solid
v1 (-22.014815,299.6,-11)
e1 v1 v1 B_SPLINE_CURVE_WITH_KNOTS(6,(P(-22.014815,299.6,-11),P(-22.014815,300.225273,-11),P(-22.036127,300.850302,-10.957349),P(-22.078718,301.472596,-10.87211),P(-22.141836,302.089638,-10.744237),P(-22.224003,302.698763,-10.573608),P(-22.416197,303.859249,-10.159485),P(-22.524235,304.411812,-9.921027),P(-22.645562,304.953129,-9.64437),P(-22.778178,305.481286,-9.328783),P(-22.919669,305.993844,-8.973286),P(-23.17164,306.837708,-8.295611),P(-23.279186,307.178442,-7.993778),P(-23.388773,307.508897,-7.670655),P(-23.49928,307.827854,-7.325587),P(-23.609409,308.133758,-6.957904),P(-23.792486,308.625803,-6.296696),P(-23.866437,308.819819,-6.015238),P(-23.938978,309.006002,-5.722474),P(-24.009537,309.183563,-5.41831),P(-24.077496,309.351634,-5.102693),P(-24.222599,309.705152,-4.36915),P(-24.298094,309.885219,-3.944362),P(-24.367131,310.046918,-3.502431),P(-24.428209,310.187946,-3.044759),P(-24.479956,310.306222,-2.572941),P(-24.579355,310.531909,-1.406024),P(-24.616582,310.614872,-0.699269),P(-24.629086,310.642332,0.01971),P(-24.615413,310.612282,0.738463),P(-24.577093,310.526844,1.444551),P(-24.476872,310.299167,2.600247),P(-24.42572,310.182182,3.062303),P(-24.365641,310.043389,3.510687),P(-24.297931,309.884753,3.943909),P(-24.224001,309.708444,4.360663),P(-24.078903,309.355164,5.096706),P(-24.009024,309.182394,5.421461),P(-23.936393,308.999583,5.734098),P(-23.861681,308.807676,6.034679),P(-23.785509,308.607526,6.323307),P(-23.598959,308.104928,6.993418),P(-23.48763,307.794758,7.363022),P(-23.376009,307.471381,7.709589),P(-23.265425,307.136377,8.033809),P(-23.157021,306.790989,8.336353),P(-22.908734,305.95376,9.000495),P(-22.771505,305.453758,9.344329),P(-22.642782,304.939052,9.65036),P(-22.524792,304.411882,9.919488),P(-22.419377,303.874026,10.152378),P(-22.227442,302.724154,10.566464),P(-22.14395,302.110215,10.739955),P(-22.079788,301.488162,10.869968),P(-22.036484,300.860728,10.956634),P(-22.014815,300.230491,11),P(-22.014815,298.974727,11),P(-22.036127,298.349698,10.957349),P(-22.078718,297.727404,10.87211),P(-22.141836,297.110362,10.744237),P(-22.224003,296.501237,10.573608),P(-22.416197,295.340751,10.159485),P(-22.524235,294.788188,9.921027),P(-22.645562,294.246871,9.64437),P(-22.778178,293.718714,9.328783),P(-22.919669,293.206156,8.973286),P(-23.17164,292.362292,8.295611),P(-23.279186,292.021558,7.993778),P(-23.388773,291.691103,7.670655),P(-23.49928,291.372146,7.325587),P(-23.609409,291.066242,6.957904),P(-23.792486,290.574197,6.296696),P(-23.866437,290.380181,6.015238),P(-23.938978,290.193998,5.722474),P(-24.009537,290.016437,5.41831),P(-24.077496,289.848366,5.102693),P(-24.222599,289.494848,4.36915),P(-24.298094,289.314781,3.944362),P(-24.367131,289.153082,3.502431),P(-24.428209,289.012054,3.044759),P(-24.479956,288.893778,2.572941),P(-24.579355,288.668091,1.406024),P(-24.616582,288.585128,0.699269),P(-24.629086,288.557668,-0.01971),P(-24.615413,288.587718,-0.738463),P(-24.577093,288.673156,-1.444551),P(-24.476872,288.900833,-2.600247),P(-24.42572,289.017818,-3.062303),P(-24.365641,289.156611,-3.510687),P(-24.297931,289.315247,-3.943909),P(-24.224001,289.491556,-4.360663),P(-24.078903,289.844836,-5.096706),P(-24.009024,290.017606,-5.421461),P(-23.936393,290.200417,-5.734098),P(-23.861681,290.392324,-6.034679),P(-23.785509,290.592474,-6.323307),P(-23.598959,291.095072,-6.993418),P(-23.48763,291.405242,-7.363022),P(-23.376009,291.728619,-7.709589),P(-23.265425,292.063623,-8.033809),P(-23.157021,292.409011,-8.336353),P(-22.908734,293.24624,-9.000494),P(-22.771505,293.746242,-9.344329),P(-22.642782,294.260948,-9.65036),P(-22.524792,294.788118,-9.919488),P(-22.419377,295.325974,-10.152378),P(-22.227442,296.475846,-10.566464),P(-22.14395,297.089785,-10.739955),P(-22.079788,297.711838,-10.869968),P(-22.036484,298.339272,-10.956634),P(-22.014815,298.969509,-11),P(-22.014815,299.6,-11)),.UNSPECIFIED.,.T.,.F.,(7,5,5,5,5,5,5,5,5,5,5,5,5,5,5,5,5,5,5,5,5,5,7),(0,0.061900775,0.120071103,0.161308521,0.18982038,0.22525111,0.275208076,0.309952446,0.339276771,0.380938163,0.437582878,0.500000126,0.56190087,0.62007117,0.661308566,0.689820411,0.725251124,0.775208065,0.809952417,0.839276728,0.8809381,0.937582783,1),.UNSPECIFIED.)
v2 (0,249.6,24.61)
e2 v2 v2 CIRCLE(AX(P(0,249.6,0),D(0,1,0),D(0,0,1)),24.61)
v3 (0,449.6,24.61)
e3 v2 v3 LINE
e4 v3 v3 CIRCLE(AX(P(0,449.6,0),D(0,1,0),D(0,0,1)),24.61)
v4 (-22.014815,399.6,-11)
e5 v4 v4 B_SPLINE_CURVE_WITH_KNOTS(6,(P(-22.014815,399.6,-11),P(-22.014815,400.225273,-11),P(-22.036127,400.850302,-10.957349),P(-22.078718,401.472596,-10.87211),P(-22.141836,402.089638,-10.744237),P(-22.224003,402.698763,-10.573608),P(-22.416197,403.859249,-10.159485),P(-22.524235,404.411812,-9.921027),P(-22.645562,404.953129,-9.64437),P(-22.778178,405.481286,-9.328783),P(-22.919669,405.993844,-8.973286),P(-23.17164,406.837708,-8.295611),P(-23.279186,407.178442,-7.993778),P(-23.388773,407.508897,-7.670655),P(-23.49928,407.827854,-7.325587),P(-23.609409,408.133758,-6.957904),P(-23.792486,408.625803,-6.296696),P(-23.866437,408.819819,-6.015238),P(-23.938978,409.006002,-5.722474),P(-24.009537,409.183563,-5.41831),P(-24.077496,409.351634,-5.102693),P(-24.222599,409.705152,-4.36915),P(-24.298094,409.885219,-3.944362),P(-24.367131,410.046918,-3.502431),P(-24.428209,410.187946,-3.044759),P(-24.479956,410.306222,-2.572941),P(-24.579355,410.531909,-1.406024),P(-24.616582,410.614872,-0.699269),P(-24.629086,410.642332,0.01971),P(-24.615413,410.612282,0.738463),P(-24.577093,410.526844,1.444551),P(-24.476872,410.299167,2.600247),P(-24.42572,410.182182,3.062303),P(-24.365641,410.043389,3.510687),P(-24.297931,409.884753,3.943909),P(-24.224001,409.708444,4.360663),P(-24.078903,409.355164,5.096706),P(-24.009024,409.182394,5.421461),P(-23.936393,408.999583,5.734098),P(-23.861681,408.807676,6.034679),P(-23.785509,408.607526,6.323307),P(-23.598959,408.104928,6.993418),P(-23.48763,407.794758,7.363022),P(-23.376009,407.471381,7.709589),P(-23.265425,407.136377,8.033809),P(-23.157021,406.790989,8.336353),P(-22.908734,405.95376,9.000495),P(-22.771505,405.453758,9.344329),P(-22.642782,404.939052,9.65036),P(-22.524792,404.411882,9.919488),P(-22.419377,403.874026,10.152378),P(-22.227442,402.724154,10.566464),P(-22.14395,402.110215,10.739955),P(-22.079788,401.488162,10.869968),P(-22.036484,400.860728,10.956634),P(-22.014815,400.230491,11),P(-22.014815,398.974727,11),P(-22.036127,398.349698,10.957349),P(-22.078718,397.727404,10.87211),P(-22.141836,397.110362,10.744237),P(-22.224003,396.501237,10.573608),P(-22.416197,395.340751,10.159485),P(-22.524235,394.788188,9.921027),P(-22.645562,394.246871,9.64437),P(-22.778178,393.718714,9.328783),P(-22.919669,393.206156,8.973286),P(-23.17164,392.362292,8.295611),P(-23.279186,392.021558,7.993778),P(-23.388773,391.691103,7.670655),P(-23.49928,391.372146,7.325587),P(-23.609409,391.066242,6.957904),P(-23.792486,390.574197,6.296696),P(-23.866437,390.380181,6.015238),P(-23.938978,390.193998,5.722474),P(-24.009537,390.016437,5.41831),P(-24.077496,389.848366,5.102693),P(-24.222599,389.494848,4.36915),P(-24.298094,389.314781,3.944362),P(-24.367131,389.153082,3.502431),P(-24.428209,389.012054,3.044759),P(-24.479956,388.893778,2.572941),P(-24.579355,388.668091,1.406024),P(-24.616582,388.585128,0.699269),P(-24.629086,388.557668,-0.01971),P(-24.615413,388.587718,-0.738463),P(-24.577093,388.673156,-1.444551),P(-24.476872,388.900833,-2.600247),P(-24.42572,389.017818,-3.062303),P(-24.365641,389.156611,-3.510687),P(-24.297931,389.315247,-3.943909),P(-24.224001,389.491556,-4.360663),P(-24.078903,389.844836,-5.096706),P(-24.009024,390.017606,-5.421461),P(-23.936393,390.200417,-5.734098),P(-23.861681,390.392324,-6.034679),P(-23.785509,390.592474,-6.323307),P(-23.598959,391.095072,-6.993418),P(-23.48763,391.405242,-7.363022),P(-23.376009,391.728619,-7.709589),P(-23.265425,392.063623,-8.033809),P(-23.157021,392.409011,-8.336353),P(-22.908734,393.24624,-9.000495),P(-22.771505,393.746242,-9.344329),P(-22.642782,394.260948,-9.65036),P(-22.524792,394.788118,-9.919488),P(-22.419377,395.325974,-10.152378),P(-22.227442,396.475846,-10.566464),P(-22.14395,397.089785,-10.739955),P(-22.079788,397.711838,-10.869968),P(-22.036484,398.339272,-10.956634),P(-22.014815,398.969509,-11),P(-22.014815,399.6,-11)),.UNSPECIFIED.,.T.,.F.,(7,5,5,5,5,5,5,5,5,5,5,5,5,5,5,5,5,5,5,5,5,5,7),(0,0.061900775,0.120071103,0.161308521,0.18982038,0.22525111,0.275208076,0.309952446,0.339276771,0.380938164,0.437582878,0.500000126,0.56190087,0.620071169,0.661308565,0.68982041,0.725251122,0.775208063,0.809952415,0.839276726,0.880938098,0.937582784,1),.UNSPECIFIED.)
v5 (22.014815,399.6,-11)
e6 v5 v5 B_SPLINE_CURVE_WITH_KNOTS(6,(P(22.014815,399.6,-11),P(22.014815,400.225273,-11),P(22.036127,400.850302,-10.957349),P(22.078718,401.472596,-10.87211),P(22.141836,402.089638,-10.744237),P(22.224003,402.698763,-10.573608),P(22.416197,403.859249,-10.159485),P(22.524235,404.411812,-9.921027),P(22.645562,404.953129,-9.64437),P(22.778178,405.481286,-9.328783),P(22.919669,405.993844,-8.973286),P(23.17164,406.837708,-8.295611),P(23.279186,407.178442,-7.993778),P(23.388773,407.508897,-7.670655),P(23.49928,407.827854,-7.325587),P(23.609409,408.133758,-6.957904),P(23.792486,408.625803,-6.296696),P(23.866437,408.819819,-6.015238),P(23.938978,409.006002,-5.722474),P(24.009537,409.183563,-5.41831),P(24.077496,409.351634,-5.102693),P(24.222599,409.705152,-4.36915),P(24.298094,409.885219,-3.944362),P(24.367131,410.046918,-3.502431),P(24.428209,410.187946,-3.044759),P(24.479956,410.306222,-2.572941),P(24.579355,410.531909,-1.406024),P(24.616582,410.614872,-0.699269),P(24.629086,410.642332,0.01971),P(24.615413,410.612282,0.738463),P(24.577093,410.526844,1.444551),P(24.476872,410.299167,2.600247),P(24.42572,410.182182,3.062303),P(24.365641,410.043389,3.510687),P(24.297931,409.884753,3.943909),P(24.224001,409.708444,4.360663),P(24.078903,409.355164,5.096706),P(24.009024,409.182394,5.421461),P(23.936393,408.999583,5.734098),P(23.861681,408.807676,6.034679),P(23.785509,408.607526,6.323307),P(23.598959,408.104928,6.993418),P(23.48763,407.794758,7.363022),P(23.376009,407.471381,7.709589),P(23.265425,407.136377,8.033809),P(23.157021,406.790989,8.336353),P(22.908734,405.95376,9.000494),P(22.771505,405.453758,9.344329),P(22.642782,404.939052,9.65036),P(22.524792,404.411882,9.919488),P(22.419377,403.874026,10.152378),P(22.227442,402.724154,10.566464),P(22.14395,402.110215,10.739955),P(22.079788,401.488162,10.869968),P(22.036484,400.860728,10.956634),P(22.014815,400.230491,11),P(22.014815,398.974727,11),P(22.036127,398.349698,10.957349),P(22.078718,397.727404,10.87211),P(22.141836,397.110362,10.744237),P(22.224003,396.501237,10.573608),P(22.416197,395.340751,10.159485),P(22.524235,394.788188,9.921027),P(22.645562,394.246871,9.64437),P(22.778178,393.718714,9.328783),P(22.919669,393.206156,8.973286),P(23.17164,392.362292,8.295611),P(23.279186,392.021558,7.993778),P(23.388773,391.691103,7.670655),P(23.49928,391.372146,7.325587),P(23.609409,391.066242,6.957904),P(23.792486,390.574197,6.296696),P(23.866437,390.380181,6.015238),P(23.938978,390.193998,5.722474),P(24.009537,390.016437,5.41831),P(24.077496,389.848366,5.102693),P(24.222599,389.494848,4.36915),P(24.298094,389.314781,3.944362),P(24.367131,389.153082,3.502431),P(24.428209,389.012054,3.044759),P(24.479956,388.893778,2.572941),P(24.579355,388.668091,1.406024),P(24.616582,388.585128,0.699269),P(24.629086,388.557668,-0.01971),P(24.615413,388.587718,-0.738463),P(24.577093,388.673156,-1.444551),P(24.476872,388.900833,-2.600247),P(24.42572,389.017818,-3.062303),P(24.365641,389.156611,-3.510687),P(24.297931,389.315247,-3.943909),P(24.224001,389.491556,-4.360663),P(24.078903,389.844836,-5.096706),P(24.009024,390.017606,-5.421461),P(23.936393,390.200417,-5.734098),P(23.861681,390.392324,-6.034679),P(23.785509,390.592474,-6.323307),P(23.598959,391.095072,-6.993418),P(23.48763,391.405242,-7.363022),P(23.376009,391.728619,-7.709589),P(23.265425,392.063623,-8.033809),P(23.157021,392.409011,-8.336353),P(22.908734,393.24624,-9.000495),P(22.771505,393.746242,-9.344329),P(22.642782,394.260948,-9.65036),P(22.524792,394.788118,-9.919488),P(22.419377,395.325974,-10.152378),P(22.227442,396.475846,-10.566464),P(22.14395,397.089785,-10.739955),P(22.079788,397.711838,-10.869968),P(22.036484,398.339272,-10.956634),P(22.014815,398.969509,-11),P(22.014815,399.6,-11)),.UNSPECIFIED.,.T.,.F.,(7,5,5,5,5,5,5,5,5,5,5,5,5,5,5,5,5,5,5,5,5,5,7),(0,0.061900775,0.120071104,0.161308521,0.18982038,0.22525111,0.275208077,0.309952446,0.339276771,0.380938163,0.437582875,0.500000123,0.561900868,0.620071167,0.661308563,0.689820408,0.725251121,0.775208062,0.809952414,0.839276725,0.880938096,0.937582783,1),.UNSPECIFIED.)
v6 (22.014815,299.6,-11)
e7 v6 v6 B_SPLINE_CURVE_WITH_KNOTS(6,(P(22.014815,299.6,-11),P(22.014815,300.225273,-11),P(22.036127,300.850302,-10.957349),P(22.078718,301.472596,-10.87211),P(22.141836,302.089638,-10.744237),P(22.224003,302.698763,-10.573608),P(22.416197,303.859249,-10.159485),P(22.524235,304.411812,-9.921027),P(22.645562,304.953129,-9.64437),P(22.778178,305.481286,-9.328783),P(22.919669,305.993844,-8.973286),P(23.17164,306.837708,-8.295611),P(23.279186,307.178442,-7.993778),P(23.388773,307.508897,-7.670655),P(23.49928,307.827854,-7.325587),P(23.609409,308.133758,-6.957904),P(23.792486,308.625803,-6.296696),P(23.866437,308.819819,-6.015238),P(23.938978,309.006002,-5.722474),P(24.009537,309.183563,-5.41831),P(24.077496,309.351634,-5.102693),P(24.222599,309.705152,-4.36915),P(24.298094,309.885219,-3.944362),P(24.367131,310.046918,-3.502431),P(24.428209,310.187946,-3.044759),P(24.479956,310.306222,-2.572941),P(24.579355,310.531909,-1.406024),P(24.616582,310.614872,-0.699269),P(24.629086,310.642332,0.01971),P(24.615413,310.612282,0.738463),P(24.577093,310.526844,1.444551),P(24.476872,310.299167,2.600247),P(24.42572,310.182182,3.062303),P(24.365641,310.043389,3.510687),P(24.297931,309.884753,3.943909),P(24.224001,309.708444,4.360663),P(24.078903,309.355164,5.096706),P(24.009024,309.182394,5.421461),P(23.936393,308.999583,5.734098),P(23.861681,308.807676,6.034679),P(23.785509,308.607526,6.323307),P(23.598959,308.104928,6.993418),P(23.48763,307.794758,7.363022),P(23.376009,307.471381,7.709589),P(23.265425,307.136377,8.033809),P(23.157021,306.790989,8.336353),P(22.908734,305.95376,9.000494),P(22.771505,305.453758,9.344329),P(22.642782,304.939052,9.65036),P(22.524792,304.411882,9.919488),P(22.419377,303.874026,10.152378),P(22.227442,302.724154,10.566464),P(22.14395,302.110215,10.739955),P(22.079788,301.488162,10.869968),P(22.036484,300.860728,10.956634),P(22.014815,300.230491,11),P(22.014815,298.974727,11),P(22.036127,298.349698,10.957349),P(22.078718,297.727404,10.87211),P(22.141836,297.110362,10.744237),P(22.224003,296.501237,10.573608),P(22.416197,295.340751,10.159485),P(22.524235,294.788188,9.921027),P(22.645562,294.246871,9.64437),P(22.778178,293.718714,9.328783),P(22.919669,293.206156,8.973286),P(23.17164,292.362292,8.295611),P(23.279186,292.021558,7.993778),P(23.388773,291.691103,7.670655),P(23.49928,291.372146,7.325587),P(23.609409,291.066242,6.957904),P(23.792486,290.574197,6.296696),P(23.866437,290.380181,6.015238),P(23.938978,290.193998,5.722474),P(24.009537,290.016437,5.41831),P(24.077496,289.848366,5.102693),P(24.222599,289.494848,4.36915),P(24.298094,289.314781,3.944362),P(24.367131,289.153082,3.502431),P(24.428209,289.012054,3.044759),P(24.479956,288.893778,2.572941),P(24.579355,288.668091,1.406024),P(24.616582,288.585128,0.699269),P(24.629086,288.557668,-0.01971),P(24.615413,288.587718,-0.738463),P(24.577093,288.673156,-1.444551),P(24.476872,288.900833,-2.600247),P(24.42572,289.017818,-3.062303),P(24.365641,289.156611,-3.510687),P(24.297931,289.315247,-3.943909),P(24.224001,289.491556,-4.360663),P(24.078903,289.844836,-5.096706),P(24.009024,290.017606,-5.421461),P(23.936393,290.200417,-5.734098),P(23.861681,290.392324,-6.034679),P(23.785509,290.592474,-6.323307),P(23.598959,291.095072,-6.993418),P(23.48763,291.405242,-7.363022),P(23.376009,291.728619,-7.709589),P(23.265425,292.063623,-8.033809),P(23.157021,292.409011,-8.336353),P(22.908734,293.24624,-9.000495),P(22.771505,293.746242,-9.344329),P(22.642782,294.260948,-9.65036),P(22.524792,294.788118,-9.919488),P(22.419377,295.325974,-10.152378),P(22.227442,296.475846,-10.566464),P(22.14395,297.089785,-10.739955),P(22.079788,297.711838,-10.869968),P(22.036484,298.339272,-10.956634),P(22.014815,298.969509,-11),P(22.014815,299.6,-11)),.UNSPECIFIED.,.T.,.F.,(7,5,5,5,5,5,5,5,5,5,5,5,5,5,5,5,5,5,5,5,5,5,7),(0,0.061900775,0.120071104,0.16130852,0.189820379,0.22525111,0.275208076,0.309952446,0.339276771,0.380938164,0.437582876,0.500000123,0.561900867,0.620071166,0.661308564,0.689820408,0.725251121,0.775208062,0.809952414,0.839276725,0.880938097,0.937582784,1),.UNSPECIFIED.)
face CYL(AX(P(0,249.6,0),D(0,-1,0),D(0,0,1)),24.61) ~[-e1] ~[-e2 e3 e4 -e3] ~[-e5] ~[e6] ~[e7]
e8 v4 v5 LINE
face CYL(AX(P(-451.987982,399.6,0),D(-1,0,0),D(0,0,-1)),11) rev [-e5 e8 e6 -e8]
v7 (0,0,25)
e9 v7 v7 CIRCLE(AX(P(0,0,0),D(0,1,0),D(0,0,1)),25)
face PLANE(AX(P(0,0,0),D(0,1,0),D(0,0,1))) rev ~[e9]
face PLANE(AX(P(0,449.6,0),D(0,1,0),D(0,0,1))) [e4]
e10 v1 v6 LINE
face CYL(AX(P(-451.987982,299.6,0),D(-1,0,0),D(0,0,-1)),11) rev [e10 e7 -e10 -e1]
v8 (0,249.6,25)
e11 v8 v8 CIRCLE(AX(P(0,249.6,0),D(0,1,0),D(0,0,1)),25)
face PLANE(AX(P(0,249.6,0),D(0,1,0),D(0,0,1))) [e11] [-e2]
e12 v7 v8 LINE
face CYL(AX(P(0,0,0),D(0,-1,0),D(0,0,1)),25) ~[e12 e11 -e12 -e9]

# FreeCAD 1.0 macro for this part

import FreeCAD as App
import Part
import Sketcher

doc = App.newDocument("Part")
params = doc.addObject("Spreadsheet::Sheet", "Params")
for row, (alias, value) in enumerate([
    ("sketch1_diameter", "50 mm"),
    ("pad1_length", "249.6 mm"),
    ("sketch2_diameter", "49.22 mm"),
    ("pad2_length", "200 mm"),
    ("sketch3_diameter", "22 mm"),
], start=1):
    params.set(f"A{row}", alias)
    params.set(f"B{row}", "=" + value)
    params.setAlias(f"B{row}", alias)

body = doc.addObject("PartDesign::Body", "Body")

sketch1 = doc.addObject("Sketcher::SketchObject", "Sketch")
body.addObject(sketch1)
sketch1.AttachmentSupport = (doc.XZ_Plane, [""])
sketch1.MapMode = "FlatFace"
sketch1.addGeometry(Part.Circle(App.Vector(0, 0, 0), App.Vector(0, 0, 1), 25), False)
sketch1.addConstraint([
    Sketcher.Constraint("Coincident", 0, 3, -1, 1),
    Sketcher.Constraint("Diameter", 0, 50.0),
])
sketch1.setExpression("Constraints[1]", "Params.sketch1_diameter")
pad1 = doc.addObject("PartDesign::Pad", "Pad")
body.addObject(pad1)
pad1.Profile = sketch1
pad1.setExpression("Length", "Params.pad1_length")
pad1.Reversed = True

sketch2 = doc.addObject("Sketcher::SketchObject", "Sketch001")
body.addObject(sketch2)
sketch2.AttachmentSupport = (doc.XZ_Plane, [""])
sketch2.MapMode = "FlatFace"
sketch2.AttachmentOffset = App.Placement(App.Vector(0, 0, -249.6), App.Rotation())
sketch2.addGeometry(Part.Circle(App.Vector(0, 0, 0), App.Vector(0, 0, 1), 25), False)
sketch2.addConstraint([
    Sketcher.Constraint("Coincident", 0, 3, -1, 1),
    Sketcher.Constraint("Diameter", 0, 49.22),
])
sketch2.setExpression("Constraints[1]", "Params.sketch2_diameter")
pad2 = doc.addObject("PartDesign::Pad", "Pad001")
body.addObject(pad2)
pad2.Profile = sketch2
pad2.setExpression("Length", "Params.pad2_length")
pad2.Reversed = True

sketch3 = doc.addObject("Sketcher::SketchObject", "Sketch002")
body.addObject(sketch3)
sketch3.AttachmentSupport = (doc.YZ_Plane, [""])
sketch3.MapMode = "FlatFace"
sketch3.addGeometry([
    Part.Circle(App.Vector(300, 0, 0), App.Vector(0, 0, 1), 11),
    Part.Circle(App.Vector(400, 0, 0), App.Vector(0, 0, 1), 11),
], False)
sketch3.addConstraint([
    Sketcher.Constraint("Equal", 0, 1),
    Sketcher.Constraint("PointOnObject", 0, 3, -1),
    Sketcher.Constraint("PointOnObject", 1, 3, -1),
    Sketcher.Constraint("Diameter", 0, 22.0),
    Sketcher.Constraint("DistanceX", 0, 3, 1, 3, 100.0),
    Sketcher.Constraint("DistanceX", -1, 1, 0, 3, 299.6),
])
sketch3.setExpression("Constraints[3]", "Params.sketch3_diameter")
pocket1 = doc.addObject("PartDesign::Pocket", "Pocket")
body.addObject(pocket1)
pocket1.Profile = sketch3
pocket1.Type = "ThroughAll"
pocket1.Midplane = True

doc.recompute()
